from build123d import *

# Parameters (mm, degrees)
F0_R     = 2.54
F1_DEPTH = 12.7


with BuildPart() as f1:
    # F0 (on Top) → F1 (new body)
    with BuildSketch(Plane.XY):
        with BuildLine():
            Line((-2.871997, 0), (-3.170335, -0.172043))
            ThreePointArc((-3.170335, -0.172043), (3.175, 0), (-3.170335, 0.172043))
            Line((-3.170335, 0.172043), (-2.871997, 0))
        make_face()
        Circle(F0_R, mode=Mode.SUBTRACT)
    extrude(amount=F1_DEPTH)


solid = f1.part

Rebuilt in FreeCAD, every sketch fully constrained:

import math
import FreeCAD as App
import Part
import Sketcher
from FreeCAD import Vector
Q = App.Units.Quantity

doc = App.newDocument("Part")
body = doc.addObject("PartDesign::Body", "Body")

# Sketch on XY plane
sketch1 = body.newObject("Sketcher::SketchObject", "Sketch")
sketch1.AttachmentSupport = (doc.getObject("XY_Plane"), [""])
sketch1.MapMode = "FlatFace"
sketch1.addGeometry([
    Part.LineSegment(Vector(-2.87, 0, 0), Vector(-3.17, -0.17, 0)),
    Part.ArcOfCircle(Part.Circle(Vector(0, 0, 0), Vector(0, 0, 1), 3.17), math.radians(-177), math.radians(177)),
    Part.LineSegment(Vector(-3.17, 0.17, 0), Vector(-2.87, 0, 0)),
    Part.Circle(Vector(0, 0, 0), Vector(0, 0, 1), 2.54),
], False)
sketch1.addConstraint([
    Sketcher.Constraint("Coincident", 0, 2, 1, 1),
    Sketcher.Constraint("Coincident", 1, 2, 2, 1),
    Sketcher.Constraint("Coincident", 2, 2, 0, 1),
    Sketcher.Constraint("Coincident", 1, 3, -1, 1),
    Sketcher.Constraint("Coincident", 3, 3, -1, 1),
    Sketcher.Constraint("PointOnObject", 2, 2, -1),
    Sketcher.Constraint("Vertical", 0, 2, 1, 2),
    Sketcher.Constraint("Diameter", 3, Q("0.2 in")),
    Sketcher.Constraint("Radius", 1, Q("0.125 in")),
    Sketcher.Constraint("Distance", 0, 0.34439),
    Sketcher.Constraint("DistanceX", 0, 2, 2, 2, 0.298338),
])
pad1 = body.newObject("PartDesign::Pad", "Pad")
pad1.Profile = sketch1
pad1.Length = Q("0.5 in")

doc.recompute()
